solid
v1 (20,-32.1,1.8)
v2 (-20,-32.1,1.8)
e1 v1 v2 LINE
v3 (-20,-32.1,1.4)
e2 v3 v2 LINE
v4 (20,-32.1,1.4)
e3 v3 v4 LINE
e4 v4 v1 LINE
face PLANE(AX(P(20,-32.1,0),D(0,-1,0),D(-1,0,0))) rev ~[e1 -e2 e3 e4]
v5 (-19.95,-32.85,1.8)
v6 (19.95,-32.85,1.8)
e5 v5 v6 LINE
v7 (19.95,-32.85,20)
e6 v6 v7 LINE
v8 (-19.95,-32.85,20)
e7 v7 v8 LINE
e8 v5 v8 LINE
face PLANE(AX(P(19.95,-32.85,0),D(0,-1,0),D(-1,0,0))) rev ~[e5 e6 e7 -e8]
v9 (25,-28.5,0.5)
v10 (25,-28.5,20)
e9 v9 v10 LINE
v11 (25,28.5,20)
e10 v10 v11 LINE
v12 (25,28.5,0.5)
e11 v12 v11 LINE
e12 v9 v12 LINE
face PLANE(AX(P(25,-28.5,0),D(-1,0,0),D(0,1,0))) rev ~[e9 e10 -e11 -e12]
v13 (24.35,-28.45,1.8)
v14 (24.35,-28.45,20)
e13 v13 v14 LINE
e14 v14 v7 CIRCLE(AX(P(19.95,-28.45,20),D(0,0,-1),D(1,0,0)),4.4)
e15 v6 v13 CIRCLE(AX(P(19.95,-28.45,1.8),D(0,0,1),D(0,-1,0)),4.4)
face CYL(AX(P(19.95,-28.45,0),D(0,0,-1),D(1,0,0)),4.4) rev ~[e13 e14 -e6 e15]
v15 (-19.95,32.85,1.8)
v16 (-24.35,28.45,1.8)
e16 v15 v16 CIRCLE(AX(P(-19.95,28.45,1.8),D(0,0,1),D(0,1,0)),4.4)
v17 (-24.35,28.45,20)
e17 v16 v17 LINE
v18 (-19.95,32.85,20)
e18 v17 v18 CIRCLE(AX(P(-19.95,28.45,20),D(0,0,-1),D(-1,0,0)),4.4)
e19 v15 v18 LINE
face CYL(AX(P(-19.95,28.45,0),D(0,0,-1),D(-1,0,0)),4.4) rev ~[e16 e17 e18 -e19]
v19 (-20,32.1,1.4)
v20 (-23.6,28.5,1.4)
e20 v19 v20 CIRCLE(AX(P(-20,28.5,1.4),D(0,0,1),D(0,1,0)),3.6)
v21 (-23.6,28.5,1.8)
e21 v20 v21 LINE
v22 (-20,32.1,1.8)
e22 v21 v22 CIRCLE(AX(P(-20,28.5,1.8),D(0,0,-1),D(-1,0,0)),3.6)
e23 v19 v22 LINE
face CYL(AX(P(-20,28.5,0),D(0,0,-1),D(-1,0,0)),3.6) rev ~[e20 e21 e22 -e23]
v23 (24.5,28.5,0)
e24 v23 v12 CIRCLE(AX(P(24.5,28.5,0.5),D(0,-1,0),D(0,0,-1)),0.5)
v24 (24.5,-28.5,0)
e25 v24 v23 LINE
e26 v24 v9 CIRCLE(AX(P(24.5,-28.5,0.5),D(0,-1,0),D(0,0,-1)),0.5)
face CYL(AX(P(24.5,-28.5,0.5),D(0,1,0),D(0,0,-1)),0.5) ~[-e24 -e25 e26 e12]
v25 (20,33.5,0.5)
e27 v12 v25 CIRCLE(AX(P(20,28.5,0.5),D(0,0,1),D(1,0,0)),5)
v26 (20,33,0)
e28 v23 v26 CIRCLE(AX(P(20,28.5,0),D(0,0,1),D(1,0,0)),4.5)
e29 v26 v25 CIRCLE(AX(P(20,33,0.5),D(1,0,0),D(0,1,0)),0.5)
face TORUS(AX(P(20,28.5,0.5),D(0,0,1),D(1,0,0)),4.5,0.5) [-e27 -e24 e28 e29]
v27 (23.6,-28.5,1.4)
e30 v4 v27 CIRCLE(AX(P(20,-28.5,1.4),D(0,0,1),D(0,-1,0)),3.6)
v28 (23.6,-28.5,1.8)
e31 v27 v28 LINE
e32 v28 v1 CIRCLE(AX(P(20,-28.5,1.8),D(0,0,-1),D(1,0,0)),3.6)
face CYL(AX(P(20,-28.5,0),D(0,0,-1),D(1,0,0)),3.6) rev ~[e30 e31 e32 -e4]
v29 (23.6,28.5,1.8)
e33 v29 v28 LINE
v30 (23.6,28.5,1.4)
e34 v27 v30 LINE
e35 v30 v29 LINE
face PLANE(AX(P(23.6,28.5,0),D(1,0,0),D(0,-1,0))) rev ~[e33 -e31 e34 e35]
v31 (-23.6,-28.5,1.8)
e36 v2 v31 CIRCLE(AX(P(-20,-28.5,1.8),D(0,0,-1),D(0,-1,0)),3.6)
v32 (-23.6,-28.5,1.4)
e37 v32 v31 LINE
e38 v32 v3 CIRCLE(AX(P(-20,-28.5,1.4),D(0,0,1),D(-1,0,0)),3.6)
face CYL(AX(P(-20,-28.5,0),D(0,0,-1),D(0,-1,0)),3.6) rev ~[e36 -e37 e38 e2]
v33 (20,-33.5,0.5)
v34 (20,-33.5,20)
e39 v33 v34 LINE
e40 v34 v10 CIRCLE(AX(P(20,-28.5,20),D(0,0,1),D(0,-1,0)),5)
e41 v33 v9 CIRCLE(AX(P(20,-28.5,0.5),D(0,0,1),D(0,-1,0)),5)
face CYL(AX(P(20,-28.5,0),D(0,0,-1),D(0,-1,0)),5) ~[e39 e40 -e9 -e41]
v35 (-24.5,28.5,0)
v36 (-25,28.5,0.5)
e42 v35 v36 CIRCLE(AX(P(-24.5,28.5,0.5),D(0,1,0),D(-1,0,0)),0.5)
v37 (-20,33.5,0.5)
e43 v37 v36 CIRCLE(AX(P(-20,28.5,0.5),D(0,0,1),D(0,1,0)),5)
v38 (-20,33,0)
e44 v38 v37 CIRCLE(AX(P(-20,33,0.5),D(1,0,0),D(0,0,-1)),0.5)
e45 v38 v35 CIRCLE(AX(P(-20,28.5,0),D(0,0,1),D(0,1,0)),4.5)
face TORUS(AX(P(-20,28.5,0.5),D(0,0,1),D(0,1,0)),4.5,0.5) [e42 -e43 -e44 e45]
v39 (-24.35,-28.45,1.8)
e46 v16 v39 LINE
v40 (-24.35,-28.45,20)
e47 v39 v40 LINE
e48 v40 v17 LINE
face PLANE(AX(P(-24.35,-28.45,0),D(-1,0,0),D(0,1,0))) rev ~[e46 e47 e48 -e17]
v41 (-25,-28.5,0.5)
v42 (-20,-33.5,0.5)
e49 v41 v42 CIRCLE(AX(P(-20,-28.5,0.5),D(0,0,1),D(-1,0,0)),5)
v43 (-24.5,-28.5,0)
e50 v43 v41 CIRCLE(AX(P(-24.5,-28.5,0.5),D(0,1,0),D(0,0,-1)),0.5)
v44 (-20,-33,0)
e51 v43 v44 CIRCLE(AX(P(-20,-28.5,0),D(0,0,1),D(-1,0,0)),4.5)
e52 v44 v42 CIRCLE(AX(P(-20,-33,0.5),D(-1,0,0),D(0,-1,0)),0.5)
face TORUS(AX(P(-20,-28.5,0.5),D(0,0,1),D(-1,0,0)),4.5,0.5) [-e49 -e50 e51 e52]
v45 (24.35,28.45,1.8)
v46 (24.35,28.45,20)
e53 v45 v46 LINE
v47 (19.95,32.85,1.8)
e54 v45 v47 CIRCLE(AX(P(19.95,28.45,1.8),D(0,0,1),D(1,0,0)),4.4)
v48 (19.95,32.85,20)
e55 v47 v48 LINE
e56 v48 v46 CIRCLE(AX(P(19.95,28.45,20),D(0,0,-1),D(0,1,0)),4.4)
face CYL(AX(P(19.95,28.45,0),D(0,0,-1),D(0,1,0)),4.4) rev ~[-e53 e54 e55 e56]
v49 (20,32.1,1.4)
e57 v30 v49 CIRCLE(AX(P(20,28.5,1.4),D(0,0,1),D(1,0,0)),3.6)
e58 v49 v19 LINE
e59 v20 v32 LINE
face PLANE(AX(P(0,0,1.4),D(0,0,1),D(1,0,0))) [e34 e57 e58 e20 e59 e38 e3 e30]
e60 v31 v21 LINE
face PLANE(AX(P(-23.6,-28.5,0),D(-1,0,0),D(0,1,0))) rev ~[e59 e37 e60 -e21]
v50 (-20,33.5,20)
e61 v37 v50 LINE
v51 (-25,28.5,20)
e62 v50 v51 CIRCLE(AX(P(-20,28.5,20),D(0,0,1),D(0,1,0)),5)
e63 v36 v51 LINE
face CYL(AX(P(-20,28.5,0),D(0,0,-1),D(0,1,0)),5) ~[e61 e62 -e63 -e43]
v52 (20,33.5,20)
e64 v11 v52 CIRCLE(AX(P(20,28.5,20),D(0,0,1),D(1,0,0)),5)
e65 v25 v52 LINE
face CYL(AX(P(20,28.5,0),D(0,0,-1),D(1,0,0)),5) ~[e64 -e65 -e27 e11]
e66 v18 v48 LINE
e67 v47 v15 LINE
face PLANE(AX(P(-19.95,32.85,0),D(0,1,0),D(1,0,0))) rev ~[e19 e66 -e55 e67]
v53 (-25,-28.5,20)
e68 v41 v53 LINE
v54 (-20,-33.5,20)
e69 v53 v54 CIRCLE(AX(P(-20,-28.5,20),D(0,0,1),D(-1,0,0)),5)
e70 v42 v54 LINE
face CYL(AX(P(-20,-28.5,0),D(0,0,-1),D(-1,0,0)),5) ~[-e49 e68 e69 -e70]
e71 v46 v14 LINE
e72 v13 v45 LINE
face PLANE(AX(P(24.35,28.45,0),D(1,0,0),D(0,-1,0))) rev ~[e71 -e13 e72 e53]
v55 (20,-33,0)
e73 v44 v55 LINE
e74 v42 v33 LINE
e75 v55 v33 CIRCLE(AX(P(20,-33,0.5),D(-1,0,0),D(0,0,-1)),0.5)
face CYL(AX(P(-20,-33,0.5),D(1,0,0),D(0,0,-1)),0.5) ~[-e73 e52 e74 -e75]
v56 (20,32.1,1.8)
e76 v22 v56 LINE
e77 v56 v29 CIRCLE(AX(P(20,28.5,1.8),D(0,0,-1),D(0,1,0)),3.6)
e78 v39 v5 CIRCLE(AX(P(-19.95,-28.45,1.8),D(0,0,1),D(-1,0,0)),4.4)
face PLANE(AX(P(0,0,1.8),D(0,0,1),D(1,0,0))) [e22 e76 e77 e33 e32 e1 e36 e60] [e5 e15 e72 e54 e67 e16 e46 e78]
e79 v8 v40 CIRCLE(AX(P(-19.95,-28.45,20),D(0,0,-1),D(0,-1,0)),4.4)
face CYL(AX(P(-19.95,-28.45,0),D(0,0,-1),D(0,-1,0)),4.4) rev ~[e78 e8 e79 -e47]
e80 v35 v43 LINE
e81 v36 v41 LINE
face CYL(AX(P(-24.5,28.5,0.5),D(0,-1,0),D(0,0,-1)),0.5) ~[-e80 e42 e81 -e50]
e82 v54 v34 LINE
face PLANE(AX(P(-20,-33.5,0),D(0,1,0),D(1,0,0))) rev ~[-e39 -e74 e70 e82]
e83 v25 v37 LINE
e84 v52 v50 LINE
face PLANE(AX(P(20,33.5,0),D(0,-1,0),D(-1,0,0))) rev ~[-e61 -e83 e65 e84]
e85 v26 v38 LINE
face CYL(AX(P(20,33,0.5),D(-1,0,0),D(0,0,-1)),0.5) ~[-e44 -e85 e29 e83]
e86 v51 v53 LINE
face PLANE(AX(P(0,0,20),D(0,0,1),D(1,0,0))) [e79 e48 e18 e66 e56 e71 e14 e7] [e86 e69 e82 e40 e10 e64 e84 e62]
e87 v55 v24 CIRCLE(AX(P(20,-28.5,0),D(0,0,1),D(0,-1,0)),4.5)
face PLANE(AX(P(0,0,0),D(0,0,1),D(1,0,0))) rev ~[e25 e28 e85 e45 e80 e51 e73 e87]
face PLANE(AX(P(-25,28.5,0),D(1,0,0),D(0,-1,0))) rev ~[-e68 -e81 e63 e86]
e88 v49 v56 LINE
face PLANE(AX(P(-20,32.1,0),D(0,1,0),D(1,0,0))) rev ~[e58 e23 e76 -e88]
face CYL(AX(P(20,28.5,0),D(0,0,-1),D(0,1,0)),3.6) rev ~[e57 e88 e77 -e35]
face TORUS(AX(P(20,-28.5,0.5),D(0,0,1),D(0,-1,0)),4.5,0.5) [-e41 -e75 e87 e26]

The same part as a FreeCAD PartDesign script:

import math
import FreeCAD as App
import Part
import Sketcher

V = App.Vector
Q = App.Units.Quantity


def edges_at(feature, points):
    """Names of the edges that pass closest to the given points."""
    edges = feature.Shape.Edges
    near = lambda p: min(range(len(edges)), key=lambda i: edges[i].distToShape(Part.Vertex(*p))[0])
    return sorted({f"Edge{near(p) + 1}" for p in points})

doc = App.newDocument("Part")
body = doc.addObject("PartDesign::Body", "Body")

sketch1 = doc.addObject("Sketcher::SketchObject", "Sketch")
body.addObject(sketch1)
sketch1.AttachmentSupport = (doc.XY_Plane, [""])
sketch1.MapMode = "FlatFace"
sketch1.addGeometry(Part.ArcOfCircle(Part.Circle(V(19.95, 28.45, 0), V(0, 0, 1), 4.4), math.radians(0), math.radians(90)), False)
sketch1.addGeometry(Part.LineSegment(V(19.95, 32.85, 0), V(-19.95, 32.85, 0)), False)
sketch1.addGeometry(Part.ArcOfCircle(Part.Circle(V(-19.95, 28.45, 0), V(0, 0, 1), 4.4), math.radians(90), math.radians(180)), False)
sketch1.addGeometry(Part.LineSegment(V(-24.35, 28.45, 0), V(-24.35, -28.45, 0)), False)
sketch1.addGeometry(Part.ArcOfCircle(Part.Circle(V(-19.95, -28.45, 0), V(0, 0, 1), 4.4), math.radians(180), math.radians(270)), False)
sketch1.addGeometry(Part.LineSegment(V(-19.95, -32.85, 0), V(19.95, -32.85, 0)), False)
sketch1.addGeometry(Part.ArcOfCircle(Part.Circle(V(19.95, -28.45, 0), V(0, 0, 1), 4.4), math.radians(-90), math.radians(0)), False)
sketch1.addGeometry(Part.LineSegment(V(24.35, -28.45, 0), V(24.35, 28.45, 0)), False)
sketch1.addGeometry(Part.ArcOfCircle(Part.Circle(V(20, -28.5, 0), V(0, 0, 1), 3.6), math.radians(-90), math.radians(0)), False)
sketch1.addGeometry(Part.LineSegment(V(20, -32.1, 0), V(-20, -32.1, 0)), False)
sketch1.addGeometry(Part.ArcOfCircle(Part.Circle(V(-20, -28.5, 0), V(0, 0, 1), 3.6), math.radians(180), math.radians(270)), False)
sketch1.addGeometry(Part.LineSegment(V(-23.6, -28.5, 0), V(-23.6, 28.5, 0)), False)
sketch1.addGeometry(Part.ArcOfCircle(Part.Circle(V(-20, 28.5, 0), V(0, 0, 1), 3.6), math.radians(90), math.radians(180)), False)
sketch1.addGeometry(Part.LineSegment(V(-20, 32.1, 0), V(20, 32.1, 0)), False)
sketch1.addGeometry(Part.ArcOfCircle(Part.Circle(V(20, 28.5, 0), V(0, 0, 1), 3.6), math.radians(0), math.radians(90)), False)
sketch1.addGeometry(Part.LineSegment(V(23.6, 28.5, 0), V(23.6, -28.5, 0)), False)
sketch1.addConstraint(Sketcher.Constraint("Tangent", 0, 2, 1, 1))
sketch1.addConstraint(Sketcher.Constraint("Tangent", 1, 2, 2, 1))
sketch1.addConstraint(Sketcher.Constraint("Tangent", 2, 2, 3, 1))
sketch1.addConstraint(Sketcher.Constraint("Tangent", 3, 2, 4, 1))
sketch1.addConstraint(Sketcher.Constraint("Tangent", 4, 2, 5, 1))
sketch1.addConstraint(Sketcher.Constraint("Tangent", 5, 2, 6, 1))
sketch1.addConstraint(Sketcher.Constraint("Tangent", 6, 2, 7, 1))
sketch1.addConstraint(Sketcher.Constraint("Tangent", 7, 2, 0, 1))
sketch1.addConstraint(Sketcher.Constraint("Tangent", 8, 1, 9, 1))
sketch1.addConstraint(Sketcher.Constraint("Tangent", 9, 2, 10, 2))
sketch1.addConstraint(Sketcher.Constraint("Tangent", 10, 1, 11, 1))
sketch1.addConstraint(Sketcher.Constraint("Tangent", 11, 2, 12, 2))
sketch1.addConstraint(Sketcher.Constraint("Tangent", 12, 1, 13, 1))
sketch1.addConstraint(Sketcher.Constraint("Tangent", 13, 2, 14, 2))
sketch1.addConstraint(Sketcher.Constraint("Tangent", 14, 1, 15, 1))
sketch1.addConstraint(Sketcher.Constraint("Tangent", 15, 2, 8, 2))
sketch1.addConstraint(Sketcher.Constraint("Horizontal", 1))
sketch1.addConstraint(Sketcher.Constraint("Vertical", 3))
sketch1.addConstraint(Sketcher.Constraint("Horizontal", 5))
sketch1.addConstraint(Sketcher.Constraint("Vertical", 7))
sketch1.addConstraint(Sketcher.Constraint("Horizontal", 9))
sketch1.addConstraint(Sketcher.Constraint("Vertical", 11))
sketch1.addConstraint(Sketcher.Constraint("Horizontal", 13))
sketch1.addConstraint(Sketcher.Constraint("Vertical", 15))
sketch1.addConstraint(Sketcher.Constraint("Equal", 0, 2))
sketch1.addConstraint(Sketcher.Constraint("Equal", 2, 4))
sketch1.addConstraint(Sketcher.Constraint("Equal", 4, 6))
sketch1.addConstraint(Sketcher.Constraint("Equal", 8, 10))
sketch1.addConstraint(Sketcher.Constraint("Equal", 10, 12))
sketch1.addConstraint(Sketcher.Constraint("Equal", 12, 14))
sketch1.addConstraint(Sketcher.Constraint("Symmetric", 0, 3, 4, 3, -1, 1))
sketch1.addConstraint(Sketcher.Constraint("Symmetric", 8, 3, 12, 3, -1, 1))
sketch1.addConstraint(Sketcher.Constraint("Radius", 0, Q("4.4 mm")))
sketch1.addConstraint(Sketcher.Constraint("Radius", 8, Q("3.6 mm")))
sketch1.addConstraint(Sketcher.Constraint("DistanceX", 9, 2, 9, 1, Q("40 mm")))
sketch1.addConstraint(Sketcher.Constraint("DistanceY", 11, 1, 11, 2, Q("57 mm")))
sketch1.addConstraint(Sketcher.Constraint("DistanceX", 1, 2, 1, 1, Q("39.9 mm")))
sketch1.addConstraint(Sketcher.Constraint("DistanceY", 3, 2, 3, 1, Q("56.9 mm")))
pad1 = doc.addObject("PartDesign::Pad", "Pad")
body.addObject(pad1)
pad1.Profile = sketch1
pad1.Length = 1.8

sketch2 = doc.addObject("Sketcher::SketchObject", "Sketch001")
body.addObject(sketch2)
sketch2.AttachmentSupport = (doc.XY_Plane, [""])
sketch2.MapMode = "FlatFace"
sketch2.addGeometry(Part.ArcOfCircle(Part.Circle(V(-20, -28.5, 0), V(0, 0, 1), 5), math.radians(180), math.radians(270)), False)
sketch2.addGeometry(Part.LineSegment(V(-20, -33.5, 0), V(20, -33.5, 0)), False)
sketch2.addGeometry(Part.ArcOfCircle(Part.Circle(V(20, -28.5, 0), V(0, 0, 1), 5), math.radians(-90), math.radians(0)), False)
sketch2.addGeometry(Part.LineSegment(V(25, -28.5, 0), V(25, 28.5, 0)), False)
sketch2.addGeometry(Part.ArcOfCircle(Part.Circle(V(20, 28.5, 0), V(0, 0, 1), 5), math.radians(0), math.radians(90)), False)
sketch2.addGeometry(Part.LineSegment(V(20, 33.5, 0), V(-20, 33.5, 0)), False)
sketch2.addGeometry(Part.ArcOfCircle(Part.Circle(V(-20, 28.5, 0), V(0, 0, 1), 5), math.radians(90), math.radians(180)), False)
sketch2.addGeometry(Part.LineSegment(V(-25, 28.5, 0), V(-25, -28.5, 0)), False)
sketch2.addGeometry(Part.ArcOfCircle(Part.Circle(V(-19.95, 28.45, 0), V(0, 0, 1), 4.4), math.radians(90), math.radians(180)), False)
sketch2.addGeometry(Part.LineSegment(V(-19.95, 32.85, 0), V(19.95, 32.85, 0)), False)
sketch2.addGeometry(Part.ArcOfCircle(Part.Circle(V(19.95, 28.45, 0), V(0, 0, 1), 4.4), math.radians(0), math.radians(90)), False)
sketch2.addGeometry(Part.LineSegment(V(24.35, 28.45, 0), V(24.35, -28.45, 0)), False)
sketch2.addGeometry(Part.ArcOfCircle(Part.Circle(V(19.95, -28.45, 0), V(0, 0, 1), 4.4), math.radians(-90), math.radians(0)), False)
sketch2.addGeometry(Part.LineSegment(V(19.95, -32.85, 0), V(-19.95, -32.85, 0)), False)
sketch2.addGeometry(Part.ArcOfCircle(Part.Circle(V(-19.95, -28.45, 0), V(0, 0, 1), 4.4), math.radians(180), math.radians(270)), False)
sketch2.addGeometry(Part.LineSegment(V(-24.35, -28.45, 0), V(-24.35, 28.45, 0)), False)
sketch2.addConstraint(Sketcher.Constraint("Tangent", 0, 2, 1, 1))
sketch2.addConstraint(Sketcher.Constraint("Tangent", 1, 2, 2, 1))
sketch2.addConstraint(Sketcher.Constraint("Tangent", 2, 2, 3, 1))
sketch2.addConstraint(Sketcher.Constraint("Tangent", 3, 2, 4, 1))
sketch2.addConstraint(Sketcher.Constraint("Tangent", 4, 2, 5, 1))
sketch2.addConstraint(Sketcher.Constraint("Tangent", 5, 2, 6, 1))
sketch2.addConstraint(Sketcher.Constraint("Tangent", 6, 2, 7, 1))
sketch2.addConstraint(Sketcher.Constraint("Tangent", 7, 2, 0, 1))
sketch2.addConstraint(Sketcher.Constraint("Tangent", 8, 1, 9, 1))
sketch2.addConstraint(Sketcher.Constraint("Tangent", 9, 2, 10, 2))
sketch2.addConstraint(Sketcher.Constraint("Tangent", 10, 1, 11, 1))
sketch2.addConstraint(Sketcher.Constraint("Tangent", 11, 2, 12, 2))
sketch2.addConstraint(Sketcher.Constraint("Tangent", 12, 1, 13, 1))
sketch2.addConstraint(Sketcher.Constraint("Tangent", 13, 2, 14, 2))
sketch2.addConstraint(Sketcher.Constraint("Tangent", 14, 1, 15, 1))
sketch2.addConstraint(Sketcher.Constraint("Tangent", 15, 2, 8, 2))
sketch2.addConstraint(Sketcher.Constraint("Horizontal", 1))
sketch2.addConstraint(Sketcher.Constraint("Vertical", 3))
sketch2.addConstraint(Sketcher.Constraint("Horizontal", 5))
sketch2.addConstraint(Sketcher.Constraint("Vertical", 7))
sketch2.addConstraint(Sketcher.Constraint("Horizontal", 9))
sketch2.addConstraint(Sketcher.Constraint("Vertical", 11))
sketch2.addConstraint(Sketcher.Constraint("Horizontal", 13))
sketch2.addConstraint(Sketcher.Constraint("Vertical", 15))
sketch2.addConstraint(Sketcher.Constraint("Equal", 0, 2))
sketch2.addConstraint(Sketcher.Constraint("Equal", 2, 4))
sketch2.addConstraint(Sketcher.Constraint("Equal", 4, 6))
sketch2.addConstraint(Sketcher.Constraint("Equal", 8, 10))
sketch2.addConstraint(Sketcher.Constraint("Equal", 10, 12))
sketch2.addConstraint(Sketcher.Constraint("Equal", 12, 14))
sketch2.addConstraint(Sketcher.Constraint("Symmetric", 0, 3, 4, 3, -1, 1))
sketch2.addConstraint(Sketcher.Constraint("Symmetric", 8, 3, 12, 3, -1, 1))
sketch2.addConstraint(Sketcher.Constraint("Radius", 0, Q("5 mm")))
sketch2.addConstraint(Sketcher.Constraint("Radius", 8, Q("4.4 mm")))
sketch2.addConstraint(Sketcher.Constraint("DistanceX", 1, 1, 1, 2, Q("40 mm")))
sketch2.addConstraint(Sketcher.Constraint("DistanceY", 3, 1, 3, 2, Q("57 mm")))
sketch2.addConstraint(Sketcher.Constraint("DistanceX", 9, 1, 9, 2, Q("39.9 mm")))
sketch2.addConstraint(Sketcher.Constraint("DistanceY", 11, 2, 11, 1, Q("56.9 mm")))
pad2 = doc.addObject("PartDesign::Pad", "Pad001")
body.addObject(pad2)
pad2.Profile = sketch2
pad2.Length = 20

sketch3 = doc.addObject("Sketcher::SketchObject", "Sketch002")
body.addObject(sketch3)
sketch3.AttachmentSupport = (doc.XY_Plane, [""])
sketch3.MapMode = "FlatFace"
sketch3.addGeometry(Part.ArcOfCircle(Part.Circle(V(-20, -28.5, 0), V(0, 0, 1), 3.6), math.radians(180), math.radians(270)), False)
sketch3.addGeometry(Part.LineSegment(V(-20, -32.1, 0), V(20, -32.1, 0)), False)
sketch3.addGeometry(Part.ArcOfCircle(Part.Circle(V(20, -28.5, 0), V(0, 0, 1), 3.6), math.radians(-90), math.radians(0)), False)
sketch3.addGeometry(Part.LineSegment(V(23.6, -28.5, 0), V(23.6, 28.5, 0)), False)
sketch3.addGeometry(Part.ArcOfCircle(Part.Circle(V(20, 28.5, 0), V(0, 0, 1), 3.6), math.radians(0), math.radians(90)), False)
sketch3.addGeometry(Part.LineSegment(V(20, 32.1, 0), V(-20, 32.1, 0)), False)
sketch3.addGeometry(Part.ArcOfCircle(Part.Circle(V(-20, 28.5, 0), V(0, 0, 1), 3.6), math.radians(90), math.radians(180)), False)
sketch3.addGeometry(Part.LineSegment(V(-23.6, 28.5, 0), V(-23.6, -28.5, 0)), False)
sketch3.addConstraint(Sketcher.Constraint("Tangent", 0, 2, 1, 1))
sketch3.addConstraint(Sketcher.Constraint("Tangent", 1, 2, 2, 1))
sketch3.addConstraint(Sketcher.Constraint("Tangent", 2, 2, 3, 1))
sketch3.addConstraint(Sketcher.Constraint("Tangent", 3, 2, 4, 1))
sketch3.addConstraint(Sketcher.Constraint("Tangent", 4, 2, 5, 1))
sketch3.addConstraint(Sketcher.Constraint("Tangent", 5, 2, 6, 1))
sketch3.addConstraint(Sketcher.Constraint("Tangent", 6, 2, 7, 1))
sketch3.addConstraint(Sketcher.Constraint("Tangent", 7, 2, 0, 1))
sketch3.addConstraint(Sketcher.Constraint("Horizontal", 1))
sketch3.addConstraint(Sketcher.Constraint("Vertical", 3))
sketch3.addConstraint(Sketcher.Constraint("Horizontal", 5))
sketch3.addConstraint(Sketcher.Constraint("Vertical", 7))
sketch3.addConstraint(Sketcher.Constraint("Equal", 0, 2))
sketch3.addConstraint(Sketcher.Constraint("Equal", 2, 4))
sketch3.addConstraint(Sketcher.Constraint("Equal", 4, 6))
sketch3.addConstraint(Sketcher.Constraint("Symmetric", 0, 3, 4, 3, -1, 1))
sketch3.addConstraint(Sketcher.Constraint("Radius", 0, Q("3.6 mm")))
sketch3.addConstraint(Sketcher.Constraint("DistanceX", 1, 1, 1, 2, Q("40 mm")))
sketch3.addConstraint(Sketcher.Constraint("DistanceY", 3, 1, 3, 2, Q("57 mm")))
pad3 = doc.addObject("PartDesign::Pad", "Pad002")
body.addObject(pad3)
pad3.Profile = sketch3
pad3.Length = 1.4
doc.recompute()

fillet = doc.addObject("PartDesign::Fillet", "Fillet")
body.addObject(fillet)
fillet.Base = (pad3, edges_at(pad3, [(25, 0, 0)]))
fillet.Radius = 0.5

doc.recompute()
